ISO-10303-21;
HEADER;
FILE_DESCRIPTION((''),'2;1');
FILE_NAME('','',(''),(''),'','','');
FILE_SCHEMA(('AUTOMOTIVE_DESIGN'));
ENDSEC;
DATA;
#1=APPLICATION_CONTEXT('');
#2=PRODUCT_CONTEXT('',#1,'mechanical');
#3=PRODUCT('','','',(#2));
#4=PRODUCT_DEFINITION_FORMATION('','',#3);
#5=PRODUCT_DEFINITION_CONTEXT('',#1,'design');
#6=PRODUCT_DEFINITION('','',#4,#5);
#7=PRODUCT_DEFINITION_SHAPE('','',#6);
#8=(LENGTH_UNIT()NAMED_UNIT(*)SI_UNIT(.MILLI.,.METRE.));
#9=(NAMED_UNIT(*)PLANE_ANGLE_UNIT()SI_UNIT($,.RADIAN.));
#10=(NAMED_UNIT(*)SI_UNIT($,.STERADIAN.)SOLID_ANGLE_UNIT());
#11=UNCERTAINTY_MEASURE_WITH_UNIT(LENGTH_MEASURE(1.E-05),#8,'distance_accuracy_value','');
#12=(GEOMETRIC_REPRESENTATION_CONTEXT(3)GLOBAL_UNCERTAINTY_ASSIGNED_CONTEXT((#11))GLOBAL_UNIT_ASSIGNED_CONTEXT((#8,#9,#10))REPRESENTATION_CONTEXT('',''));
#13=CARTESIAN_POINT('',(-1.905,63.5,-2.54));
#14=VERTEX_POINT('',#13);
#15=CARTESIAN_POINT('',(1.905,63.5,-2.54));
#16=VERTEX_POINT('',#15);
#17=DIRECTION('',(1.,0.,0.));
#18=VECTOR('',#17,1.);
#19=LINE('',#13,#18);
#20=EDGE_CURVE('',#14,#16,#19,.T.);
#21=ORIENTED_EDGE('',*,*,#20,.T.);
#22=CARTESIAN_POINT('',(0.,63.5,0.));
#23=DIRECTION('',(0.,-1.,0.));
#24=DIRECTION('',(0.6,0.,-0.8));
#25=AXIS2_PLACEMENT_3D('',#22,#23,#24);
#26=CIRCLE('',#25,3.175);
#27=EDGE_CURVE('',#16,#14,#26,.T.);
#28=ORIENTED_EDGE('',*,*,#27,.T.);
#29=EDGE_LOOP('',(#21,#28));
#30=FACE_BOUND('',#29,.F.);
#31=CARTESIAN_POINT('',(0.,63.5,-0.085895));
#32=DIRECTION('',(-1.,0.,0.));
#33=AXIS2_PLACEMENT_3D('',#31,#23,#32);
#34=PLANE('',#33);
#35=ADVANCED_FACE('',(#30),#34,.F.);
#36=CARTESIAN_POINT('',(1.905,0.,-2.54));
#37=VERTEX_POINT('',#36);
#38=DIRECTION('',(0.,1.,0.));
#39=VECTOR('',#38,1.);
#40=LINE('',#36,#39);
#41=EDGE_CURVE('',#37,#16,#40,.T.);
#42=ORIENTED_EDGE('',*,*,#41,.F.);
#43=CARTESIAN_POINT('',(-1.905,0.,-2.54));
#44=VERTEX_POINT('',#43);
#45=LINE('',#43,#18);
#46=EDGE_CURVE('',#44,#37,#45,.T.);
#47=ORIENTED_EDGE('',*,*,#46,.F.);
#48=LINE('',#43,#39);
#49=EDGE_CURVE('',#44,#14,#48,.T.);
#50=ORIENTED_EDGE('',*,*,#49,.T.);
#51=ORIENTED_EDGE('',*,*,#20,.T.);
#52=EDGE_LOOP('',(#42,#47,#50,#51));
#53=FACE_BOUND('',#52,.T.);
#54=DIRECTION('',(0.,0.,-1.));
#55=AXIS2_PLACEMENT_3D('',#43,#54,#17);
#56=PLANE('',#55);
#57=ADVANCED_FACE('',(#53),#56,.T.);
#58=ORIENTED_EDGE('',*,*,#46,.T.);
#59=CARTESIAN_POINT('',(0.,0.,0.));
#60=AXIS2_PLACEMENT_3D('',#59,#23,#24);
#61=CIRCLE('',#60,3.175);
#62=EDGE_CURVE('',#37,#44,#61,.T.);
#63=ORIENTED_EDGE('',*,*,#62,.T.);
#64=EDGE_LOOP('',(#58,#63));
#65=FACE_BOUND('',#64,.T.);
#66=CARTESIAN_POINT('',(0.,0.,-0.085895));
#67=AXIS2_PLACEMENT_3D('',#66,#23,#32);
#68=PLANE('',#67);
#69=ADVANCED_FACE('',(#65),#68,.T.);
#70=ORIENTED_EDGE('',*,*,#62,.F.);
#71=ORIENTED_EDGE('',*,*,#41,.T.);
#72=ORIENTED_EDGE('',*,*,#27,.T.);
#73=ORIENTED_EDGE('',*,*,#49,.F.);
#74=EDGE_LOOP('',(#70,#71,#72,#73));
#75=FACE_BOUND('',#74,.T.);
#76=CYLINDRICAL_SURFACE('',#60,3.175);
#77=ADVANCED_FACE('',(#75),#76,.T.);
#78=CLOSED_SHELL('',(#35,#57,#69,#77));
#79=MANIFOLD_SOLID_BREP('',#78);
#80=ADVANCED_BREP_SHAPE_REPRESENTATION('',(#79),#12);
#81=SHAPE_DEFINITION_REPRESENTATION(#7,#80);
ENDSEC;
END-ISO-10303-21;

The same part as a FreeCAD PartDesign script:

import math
import FreeCAD as App
import Part
import Sketcher
Q = App.Units.Quantity

doc = App.newDocument("Part")
body = doc.addObject("PartDesign::Body", "Body")

# Sketch on XZ plane
sketch1 = doc.addObject("Sketcher::SketchObject", "Sketch")
body.addObject(sketch1)
sketch1.AttachmentSupport = (doc.XZ_Plane, [""])
sketch1.MapMode = "FlatFace"
sketch1.addGeometry([
    Part.LineSegment(App.Vector(1.905, -2.54, 0), App.Vector(-1.905, -2.54, 0)),
    Part.ArcOfCircle(Part.Circle(App.Vector(0, 0, 0), App.Vector(0, 0, 1), 3.175), math.radians(-53.130102), math.radians(233.130102)),
], False)
sketch1.addConstraint([
    Sketcher.Constraint("Coincident", 0, 1, 1, 1),
    Sketcher.Constraint("Coincident", 1, 2, 0, 2),
    Sketcher.Constraint("Horizontal", 0),
    Sketcher.Constraint("Coincident", 1, 3, -1, 1),
    Sketcher.Constraint("Radius", 1, Q("0.125 in")),
    Sketcher.Constraint("DistanceX", 0, 2, 0, 1, Q("0.15 in")),
])
pad1 = doc.addObject("PartDesign::Pad", "Pad")
body.addObject(pad1)
pad1.Profile = sketch1
pad1.Length = Q("2.5 in")
pad1.Reversed = True

doc.recompute()
